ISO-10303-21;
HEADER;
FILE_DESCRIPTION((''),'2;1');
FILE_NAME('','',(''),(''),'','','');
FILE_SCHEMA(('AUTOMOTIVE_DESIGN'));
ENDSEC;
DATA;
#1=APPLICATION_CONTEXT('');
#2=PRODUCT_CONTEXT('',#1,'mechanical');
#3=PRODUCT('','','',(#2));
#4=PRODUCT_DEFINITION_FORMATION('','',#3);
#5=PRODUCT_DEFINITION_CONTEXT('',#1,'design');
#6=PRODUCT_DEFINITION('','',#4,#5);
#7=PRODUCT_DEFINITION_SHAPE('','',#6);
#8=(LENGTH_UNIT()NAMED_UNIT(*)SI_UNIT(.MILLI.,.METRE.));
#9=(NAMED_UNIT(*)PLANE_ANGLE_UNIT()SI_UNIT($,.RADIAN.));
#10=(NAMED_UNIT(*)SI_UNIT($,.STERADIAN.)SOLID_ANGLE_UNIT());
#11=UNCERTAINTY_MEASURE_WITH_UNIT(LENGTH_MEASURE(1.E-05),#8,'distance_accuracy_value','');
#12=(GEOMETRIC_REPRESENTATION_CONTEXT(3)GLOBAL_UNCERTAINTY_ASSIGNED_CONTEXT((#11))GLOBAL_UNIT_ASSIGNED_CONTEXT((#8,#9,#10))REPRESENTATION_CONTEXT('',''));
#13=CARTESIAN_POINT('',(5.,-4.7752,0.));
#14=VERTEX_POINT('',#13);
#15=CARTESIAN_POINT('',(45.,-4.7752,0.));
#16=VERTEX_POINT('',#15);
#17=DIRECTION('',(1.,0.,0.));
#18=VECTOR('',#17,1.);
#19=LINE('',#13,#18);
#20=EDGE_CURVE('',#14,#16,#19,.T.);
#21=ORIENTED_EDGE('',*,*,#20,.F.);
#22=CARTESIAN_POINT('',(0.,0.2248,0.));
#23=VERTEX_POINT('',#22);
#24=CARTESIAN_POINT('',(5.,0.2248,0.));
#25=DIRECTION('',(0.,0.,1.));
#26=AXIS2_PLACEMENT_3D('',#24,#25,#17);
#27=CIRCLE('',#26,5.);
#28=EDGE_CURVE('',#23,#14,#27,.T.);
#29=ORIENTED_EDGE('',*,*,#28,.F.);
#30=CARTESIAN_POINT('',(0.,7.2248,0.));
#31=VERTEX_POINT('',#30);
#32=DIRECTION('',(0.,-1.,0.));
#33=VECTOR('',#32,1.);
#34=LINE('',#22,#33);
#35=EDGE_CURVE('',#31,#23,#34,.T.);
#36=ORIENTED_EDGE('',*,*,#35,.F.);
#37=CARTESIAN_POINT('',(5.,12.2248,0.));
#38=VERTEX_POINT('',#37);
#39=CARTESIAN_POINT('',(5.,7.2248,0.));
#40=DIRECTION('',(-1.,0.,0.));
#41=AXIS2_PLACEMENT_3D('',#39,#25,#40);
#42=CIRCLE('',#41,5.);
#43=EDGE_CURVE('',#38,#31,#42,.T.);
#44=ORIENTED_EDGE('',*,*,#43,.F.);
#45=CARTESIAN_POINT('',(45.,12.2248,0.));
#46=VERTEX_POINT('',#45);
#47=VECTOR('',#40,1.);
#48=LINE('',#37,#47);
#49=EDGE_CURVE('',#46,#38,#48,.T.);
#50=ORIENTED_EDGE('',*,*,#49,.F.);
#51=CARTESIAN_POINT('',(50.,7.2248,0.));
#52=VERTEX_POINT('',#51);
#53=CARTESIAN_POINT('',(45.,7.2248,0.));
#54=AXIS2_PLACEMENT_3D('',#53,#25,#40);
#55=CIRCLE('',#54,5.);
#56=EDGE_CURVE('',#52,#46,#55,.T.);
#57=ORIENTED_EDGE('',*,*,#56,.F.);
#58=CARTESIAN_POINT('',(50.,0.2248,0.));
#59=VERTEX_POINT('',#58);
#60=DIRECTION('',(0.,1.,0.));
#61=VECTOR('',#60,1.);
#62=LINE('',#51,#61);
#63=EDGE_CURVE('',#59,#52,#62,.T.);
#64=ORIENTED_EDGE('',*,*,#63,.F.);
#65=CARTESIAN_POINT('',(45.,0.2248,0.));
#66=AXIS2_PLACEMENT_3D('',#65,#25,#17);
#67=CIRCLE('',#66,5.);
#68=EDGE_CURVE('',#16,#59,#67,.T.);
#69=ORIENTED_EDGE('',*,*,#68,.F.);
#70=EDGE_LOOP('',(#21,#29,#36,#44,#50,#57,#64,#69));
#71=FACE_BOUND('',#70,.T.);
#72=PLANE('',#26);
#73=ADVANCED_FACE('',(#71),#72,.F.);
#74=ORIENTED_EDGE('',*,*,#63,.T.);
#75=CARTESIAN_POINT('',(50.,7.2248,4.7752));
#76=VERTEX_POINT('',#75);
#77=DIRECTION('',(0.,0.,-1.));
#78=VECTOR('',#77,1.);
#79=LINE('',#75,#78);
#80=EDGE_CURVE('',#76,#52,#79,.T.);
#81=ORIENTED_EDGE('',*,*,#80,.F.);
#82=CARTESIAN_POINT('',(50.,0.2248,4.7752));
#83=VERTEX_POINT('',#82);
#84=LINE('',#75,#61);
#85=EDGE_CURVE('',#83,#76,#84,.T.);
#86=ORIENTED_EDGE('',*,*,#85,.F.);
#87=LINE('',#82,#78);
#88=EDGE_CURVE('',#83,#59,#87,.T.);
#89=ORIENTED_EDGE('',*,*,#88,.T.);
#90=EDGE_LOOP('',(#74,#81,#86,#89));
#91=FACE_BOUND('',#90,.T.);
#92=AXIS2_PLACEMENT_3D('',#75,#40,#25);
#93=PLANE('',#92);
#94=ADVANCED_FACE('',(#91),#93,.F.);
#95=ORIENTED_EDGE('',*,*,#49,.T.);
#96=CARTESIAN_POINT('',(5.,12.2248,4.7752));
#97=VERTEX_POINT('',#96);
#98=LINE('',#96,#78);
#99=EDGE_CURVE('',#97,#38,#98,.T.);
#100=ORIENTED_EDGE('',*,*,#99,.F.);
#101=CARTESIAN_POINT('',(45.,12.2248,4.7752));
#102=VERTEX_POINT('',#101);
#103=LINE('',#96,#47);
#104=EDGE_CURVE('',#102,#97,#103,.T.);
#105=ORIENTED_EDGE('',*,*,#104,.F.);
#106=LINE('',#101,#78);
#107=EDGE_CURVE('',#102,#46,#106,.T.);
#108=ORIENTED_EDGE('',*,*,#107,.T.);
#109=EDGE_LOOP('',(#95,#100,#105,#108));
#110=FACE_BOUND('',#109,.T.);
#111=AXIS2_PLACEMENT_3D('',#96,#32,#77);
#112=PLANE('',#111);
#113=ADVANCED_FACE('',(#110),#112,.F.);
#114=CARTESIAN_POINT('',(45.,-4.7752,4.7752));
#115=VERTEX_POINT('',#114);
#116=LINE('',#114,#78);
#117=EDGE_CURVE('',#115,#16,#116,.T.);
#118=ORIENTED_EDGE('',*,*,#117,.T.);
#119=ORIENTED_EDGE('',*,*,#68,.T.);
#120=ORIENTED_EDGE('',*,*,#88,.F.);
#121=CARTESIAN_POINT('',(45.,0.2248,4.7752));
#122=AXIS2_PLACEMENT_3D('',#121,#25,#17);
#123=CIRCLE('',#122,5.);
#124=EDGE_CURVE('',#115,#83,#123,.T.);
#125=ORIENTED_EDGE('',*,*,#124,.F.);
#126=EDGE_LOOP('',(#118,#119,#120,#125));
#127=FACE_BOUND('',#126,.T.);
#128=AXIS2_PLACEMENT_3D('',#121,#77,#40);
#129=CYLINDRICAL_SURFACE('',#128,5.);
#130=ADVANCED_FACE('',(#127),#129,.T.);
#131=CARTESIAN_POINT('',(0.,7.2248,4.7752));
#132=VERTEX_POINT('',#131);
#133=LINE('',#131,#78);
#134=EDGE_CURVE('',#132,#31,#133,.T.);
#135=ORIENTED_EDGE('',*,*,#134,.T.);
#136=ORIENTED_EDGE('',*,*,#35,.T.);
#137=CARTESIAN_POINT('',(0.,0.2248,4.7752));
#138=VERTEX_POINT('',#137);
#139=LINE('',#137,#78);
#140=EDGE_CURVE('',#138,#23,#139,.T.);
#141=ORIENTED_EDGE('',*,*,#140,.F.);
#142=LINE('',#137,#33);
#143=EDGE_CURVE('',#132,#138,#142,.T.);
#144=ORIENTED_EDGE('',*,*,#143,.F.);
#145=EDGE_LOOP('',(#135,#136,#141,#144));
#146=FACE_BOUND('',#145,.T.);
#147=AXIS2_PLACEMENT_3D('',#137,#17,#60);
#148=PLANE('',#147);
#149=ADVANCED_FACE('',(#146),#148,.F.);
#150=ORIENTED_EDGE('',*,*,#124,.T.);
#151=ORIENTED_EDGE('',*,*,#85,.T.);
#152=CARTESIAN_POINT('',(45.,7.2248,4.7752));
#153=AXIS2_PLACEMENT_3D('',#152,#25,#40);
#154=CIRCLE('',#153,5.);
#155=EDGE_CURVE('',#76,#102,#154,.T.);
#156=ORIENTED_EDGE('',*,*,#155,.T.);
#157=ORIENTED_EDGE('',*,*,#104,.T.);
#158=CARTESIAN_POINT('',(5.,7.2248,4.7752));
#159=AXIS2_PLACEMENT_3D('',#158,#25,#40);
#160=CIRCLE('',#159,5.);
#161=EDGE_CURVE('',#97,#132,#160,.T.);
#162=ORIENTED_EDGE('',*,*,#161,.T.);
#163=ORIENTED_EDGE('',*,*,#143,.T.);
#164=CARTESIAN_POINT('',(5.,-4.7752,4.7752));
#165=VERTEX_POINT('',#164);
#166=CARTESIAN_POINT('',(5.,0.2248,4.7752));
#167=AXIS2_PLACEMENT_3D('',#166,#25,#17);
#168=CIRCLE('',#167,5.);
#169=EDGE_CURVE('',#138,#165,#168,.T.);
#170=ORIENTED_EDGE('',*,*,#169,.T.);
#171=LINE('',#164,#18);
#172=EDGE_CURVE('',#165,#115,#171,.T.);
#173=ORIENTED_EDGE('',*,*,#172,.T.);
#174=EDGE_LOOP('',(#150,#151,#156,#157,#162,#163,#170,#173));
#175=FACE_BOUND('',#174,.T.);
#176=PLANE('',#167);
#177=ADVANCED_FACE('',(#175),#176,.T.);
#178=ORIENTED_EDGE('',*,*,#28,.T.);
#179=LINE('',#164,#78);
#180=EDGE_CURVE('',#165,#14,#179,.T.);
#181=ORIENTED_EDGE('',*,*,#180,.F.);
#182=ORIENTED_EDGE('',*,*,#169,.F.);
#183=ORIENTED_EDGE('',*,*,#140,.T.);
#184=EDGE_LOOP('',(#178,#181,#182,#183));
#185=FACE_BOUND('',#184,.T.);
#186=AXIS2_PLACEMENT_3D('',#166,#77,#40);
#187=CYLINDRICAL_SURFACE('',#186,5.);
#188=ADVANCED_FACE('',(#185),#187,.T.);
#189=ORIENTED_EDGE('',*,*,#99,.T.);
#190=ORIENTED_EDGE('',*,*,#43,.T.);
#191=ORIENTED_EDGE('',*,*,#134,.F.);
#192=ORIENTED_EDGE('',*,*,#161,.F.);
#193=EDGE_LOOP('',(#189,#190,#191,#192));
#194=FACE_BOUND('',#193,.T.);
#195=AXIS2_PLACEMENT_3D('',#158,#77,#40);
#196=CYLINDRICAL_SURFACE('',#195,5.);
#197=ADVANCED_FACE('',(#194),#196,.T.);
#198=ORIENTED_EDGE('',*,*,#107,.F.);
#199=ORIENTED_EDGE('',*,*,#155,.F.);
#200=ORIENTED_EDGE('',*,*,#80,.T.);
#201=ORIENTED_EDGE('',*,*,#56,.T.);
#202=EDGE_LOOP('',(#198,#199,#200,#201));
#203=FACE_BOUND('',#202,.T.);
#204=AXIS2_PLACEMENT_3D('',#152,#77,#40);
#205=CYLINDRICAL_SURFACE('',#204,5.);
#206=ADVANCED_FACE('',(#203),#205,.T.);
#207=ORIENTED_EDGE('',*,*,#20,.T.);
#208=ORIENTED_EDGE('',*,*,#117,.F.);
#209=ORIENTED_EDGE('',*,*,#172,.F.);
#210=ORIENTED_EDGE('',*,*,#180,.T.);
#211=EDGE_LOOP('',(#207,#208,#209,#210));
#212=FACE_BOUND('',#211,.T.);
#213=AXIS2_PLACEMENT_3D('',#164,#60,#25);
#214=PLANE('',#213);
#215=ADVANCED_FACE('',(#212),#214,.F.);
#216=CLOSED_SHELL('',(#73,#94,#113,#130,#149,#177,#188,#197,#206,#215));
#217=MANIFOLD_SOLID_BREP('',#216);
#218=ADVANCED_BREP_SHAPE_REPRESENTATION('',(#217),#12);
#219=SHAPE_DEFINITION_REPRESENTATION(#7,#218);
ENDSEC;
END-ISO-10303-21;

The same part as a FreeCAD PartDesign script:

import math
import FreeCAD as App
import Part
import Sketcher
Q = App.Units.Quantity

doc = App.newDocument("Part")
params = doc.addObject("Spreadsheet::Sheet", "Params")
for row, (alias, value) in enumerate([
    ("sketch1_radius", "5 mm"),
    ("sketch1_width", "40 mm"),
    ("sketch1_height", "7 mm"),
    ("pad1_length", "4.7752 mm"),
], start=1):
    params.set(f"A{row}", alias)
    params.set(f"B{row}", "=" + value)
    params.setAlias(f"B{row}", alias)

body = doc.addObject("PartDesign::Body", "Body")

sketch1 = body.newObject("Sketcher::SketchObject", "Sketch")
sketch1.AttachmentSupport = (doc.getObject("XY_Plane"), [""])
sketch1.MapMode = "FlatFace"
sketch1.addGeometry(Part.LineSegment(App.Vector(5, -4.7752, 0), App.Vector(45, -4.7752, 0)), False)
sketch1.addGeometry(Part.ArcOfCircle(Part.Circle(App.Vector(45, 0.2248, 0), App.Vector(0, 0, 1), 5), math.radians(-90), math.radians(0)), False)
sketch1.addGeometry(Part.LineSegment(App.Vector(50, 0.2248, 0), App.Vector(50, 7.2248, 0)), False)
sketch1.addGeometry(Part.ArcOfCircle(Part.Circle(App.Vector(45, 7.2248, 0), App.Vector(0, 0, 1), 5), math.radians(0), math.radians(90)), False)
sketch1.addGeometry(Part.LineSegment(App.Vector(45, 12.2248, 0), App.Vector(5, 12.2248, 0)), False)
sketch1.addGeometry(Part.ArcOfCircle(Part.Circle(App.Vector(5, 7.2248, 0), App.Vector(0, 0, 1), 5), math.radians(90), math.radians(180)), False)
sketch1.addGeometry(Part.LineSegment(App.Vector(0, 7.2248, 0), App.Vector(0, 0.2248, 0)), False)
sketch1.addGeometry(Part.ArcOfCircle(Part.Circle(App.Vector(5, 0.2248, 0), App.Vector(0, 0, 1), 5), math.radians(180), math.radians(270)), False)
sketch1.addConstraint(Sketcher.Constraint("Tangent", 0, 2, 1, 1))
sketch1.addConstraint(Sketcher.Constraint("Tangent", 1, 2, 2, 1))
sketch1.addConstraint(Sketcher.Constraint("Tangent", 2, 2, 3, 1))
sketch1.addConstraint(Sketcher.Constraint("Tangent", 3, 2, 4, 1))
sketch1.addConstraint(Sketcher.Constraint("Tangent", 4, 2, 5, 1))
sketch1.addConstraint(Sketcher.Constraint("Tangent", 5, 2, 6, 1))
sketch1.addConstraint(Sketcher.Constraint("Tangent", 6, 2, 7, 1))
sketch1.addConstraint(Sketcher.Constraint("Tangent", 7, 2, 0, 1))
sketch1.addConstraint(Sketcher.Constraint("Horizontal", 0))
sketch1.addConstraint(Sketcher.Constraint("Vertical", 2))
sketch1.addConstraint(Sketcher.Constraint("Horizontal", 4))
sketch1.addConstraint(Sketcher.Constraint("Vertical", 6))
sketch1.addConstraint(Sketcher.Constraint("Equal", 1, 3))
sketch1.addConstraint(Sketcher.Constraint("Equal", 3, 5))
sketch1.addConstraint(Sketcher.Constraint("Equal", 5, 7))
sketch1.addConstraint(Sketcher.Constraint("PointOnObject", 5, 2, -2))
sketch1.addConstraint(Sketcher.Constraint("Radius", 1, Q("5 mm")))
sketch1.addConstraint(Sketcher.Constraint("DistanceX", 0, 1, 0, 2, Q("40 mm")))
sketch1.addConstraint(Sketcher.Constraint("DistanceY", 2, 1, 2, 2, Q("7 mm")))
sketch1.addConstraint(Sketcher.Constraint("DistanceY", -1, 1, 1, 3, Q("0.2248 mm")))
sketch1.setExpression("Constraints[16]", "Params.sketch1_radius")
sketch1.setExpression("Constraints[17]", "Params.sketch1_width")
sketch1.setExpression("Constraints[18]", "Params.sketch1_height")
pad1 = body.newObject("PartDesign::Pad", "Pad")
pad1.Profile = sketch1
pad1.setExpression("Length", "Params.pad1_length")

doc.recompute()
